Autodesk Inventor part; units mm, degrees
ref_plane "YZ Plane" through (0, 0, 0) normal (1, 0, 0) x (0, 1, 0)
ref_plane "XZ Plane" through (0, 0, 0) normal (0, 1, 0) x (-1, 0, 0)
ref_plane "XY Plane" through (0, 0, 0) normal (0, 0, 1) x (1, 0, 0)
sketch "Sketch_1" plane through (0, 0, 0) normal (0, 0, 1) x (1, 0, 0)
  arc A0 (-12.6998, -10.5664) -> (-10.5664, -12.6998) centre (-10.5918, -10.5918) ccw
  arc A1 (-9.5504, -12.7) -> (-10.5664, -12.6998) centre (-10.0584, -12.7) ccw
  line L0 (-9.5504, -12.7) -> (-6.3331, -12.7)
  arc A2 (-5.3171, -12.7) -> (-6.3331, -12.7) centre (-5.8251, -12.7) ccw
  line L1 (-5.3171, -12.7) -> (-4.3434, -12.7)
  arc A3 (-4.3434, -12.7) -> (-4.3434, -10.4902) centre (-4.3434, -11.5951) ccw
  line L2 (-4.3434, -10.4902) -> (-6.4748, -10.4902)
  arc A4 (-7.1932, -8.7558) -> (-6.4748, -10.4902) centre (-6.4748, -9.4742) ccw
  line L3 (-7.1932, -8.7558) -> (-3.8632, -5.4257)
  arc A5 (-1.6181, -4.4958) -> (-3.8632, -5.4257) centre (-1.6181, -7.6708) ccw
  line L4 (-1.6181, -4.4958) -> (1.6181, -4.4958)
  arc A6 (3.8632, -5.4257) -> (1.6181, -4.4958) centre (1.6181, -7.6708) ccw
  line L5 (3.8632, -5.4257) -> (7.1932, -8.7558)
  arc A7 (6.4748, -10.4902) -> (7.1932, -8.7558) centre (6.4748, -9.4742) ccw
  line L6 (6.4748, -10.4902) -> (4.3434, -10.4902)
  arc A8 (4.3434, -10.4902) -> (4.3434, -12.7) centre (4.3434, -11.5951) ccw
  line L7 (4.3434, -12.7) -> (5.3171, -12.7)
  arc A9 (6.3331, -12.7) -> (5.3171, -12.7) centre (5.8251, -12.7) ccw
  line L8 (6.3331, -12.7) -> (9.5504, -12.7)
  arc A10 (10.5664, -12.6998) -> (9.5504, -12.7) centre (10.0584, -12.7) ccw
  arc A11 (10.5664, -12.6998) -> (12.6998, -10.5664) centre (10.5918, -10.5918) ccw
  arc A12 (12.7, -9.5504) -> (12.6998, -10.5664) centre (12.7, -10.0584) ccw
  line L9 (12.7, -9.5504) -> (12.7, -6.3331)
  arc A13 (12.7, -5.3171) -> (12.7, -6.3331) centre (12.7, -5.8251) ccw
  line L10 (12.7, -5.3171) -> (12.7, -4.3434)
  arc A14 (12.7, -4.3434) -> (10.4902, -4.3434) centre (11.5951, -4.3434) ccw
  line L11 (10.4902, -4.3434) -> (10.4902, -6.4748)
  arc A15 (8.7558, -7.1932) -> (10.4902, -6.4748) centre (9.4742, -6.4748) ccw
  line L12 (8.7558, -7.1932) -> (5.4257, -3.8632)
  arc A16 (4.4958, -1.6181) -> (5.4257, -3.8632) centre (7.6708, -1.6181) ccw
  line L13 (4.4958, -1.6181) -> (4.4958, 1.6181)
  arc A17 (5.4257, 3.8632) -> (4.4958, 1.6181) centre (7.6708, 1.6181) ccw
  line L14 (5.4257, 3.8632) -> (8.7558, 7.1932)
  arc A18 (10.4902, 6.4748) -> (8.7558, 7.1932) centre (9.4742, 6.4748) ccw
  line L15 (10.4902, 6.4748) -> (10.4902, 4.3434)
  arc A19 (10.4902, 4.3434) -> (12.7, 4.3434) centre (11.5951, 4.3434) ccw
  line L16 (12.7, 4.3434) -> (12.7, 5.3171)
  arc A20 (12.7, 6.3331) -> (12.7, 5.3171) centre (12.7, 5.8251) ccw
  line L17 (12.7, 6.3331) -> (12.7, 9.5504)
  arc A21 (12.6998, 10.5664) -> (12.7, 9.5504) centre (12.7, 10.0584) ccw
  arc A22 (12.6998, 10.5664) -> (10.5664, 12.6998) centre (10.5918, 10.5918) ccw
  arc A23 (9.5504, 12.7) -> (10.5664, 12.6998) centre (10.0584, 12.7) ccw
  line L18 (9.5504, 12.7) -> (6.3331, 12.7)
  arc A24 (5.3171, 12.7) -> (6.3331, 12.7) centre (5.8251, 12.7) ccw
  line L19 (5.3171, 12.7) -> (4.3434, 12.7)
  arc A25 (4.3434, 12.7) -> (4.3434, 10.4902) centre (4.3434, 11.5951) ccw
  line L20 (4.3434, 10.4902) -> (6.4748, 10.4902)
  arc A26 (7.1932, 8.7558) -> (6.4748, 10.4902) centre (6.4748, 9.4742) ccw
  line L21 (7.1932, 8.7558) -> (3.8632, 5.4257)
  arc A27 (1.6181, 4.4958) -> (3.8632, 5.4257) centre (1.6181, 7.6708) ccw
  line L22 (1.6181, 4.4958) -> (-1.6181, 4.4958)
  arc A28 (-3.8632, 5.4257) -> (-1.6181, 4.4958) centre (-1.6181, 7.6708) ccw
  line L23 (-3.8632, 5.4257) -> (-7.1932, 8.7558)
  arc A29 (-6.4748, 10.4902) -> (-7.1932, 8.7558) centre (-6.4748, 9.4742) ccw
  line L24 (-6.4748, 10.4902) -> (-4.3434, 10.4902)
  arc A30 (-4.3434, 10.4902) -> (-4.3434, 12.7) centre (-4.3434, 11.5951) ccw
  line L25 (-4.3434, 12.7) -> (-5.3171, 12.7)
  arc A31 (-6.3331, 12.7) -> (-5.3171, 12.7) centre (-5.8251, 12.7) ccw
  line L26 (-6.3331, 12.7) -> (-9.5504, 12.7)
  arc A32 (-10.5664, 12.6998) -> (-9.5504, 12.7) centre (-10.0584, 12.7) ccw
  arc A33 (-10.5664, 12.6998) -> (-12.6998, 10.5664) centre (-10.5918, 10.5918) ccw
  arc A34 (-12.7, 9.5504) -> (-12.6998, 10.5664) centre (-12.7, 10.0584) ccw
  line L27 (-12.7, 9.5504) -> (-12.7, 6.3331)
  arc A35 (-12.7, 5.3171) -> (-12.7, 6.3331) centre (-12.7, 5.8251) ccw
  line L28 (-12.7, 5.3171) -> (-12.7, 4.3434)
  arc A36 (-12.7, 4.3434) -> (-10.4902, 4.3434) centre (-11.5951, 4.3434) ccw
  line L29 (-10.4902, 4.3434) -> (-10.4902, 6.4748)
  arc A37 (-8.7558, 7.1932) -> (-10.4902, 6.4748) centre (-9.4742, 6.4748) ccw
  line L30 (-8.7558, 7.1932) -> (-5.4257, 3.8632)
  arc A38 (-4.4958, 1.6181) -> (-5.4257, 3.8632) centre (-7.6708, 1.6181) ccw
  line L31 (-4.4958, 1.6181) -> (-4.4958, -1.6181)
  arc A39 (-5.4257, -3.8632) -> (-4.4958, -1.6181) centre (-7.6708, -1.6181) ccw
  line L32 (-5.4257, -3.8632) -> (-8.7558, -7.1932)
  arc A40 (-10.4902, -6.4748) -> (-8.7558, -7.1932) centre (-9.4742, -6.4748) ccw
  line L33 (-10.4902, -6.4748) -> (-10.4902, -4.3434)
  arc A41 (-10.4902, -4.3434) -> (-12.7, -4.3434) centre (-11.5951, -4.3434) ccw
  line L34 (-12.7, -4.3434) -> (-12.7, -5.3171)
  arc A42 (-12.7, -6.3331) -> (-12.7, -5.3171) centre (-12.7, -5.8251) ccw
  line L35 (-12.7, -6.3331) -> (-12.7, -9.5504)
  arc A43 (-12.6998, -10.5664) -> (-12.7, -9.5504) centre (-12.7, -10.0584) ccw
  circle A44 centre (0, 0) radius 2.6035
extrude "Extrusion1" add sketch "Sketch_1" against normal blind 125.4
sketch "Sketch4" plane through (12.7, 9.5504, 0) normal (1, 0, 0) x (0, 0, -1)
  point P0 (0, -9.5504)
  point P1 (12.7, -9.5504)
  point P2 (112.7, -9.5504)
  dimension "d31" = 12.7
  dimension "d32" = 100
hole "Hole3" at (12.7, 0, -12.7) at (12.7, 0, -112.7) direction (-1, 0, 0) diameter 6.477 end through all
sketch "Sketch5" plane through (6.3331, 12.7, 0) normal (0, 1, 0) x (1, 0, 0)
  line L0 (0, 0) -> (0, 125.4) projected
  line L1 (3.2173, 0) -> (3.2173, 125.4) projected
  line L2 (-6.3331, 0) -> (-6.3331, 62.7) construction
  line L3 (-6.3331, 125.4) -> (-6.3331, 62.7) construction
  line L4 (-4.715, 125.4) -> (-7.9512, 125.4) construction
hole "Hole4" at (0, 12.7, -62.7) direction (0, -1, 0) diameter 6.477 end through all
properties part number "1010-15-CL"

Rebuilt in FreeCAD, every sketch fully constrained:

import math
import FreeCAD as App
import Part
import Sketcher
Q = App.Units.Quantity

doc = App.newDocument("Part")
body = doc.addObject("PartDesign::Body", "Body")

sketch1 = body.newObject("Sketcher::SketchObject", "Sketch")
sketch1.AttachmentSupport = (doc.getObject("XY_Plane"), [""])
sketch1.MapMode = "FlatFace"
sketch1.addGeometry([
    Part.ArcOfCircle(Part.Circle(App.Vector(-12.7, -10.1, 0), App.Vector(0, 0, 1), 0.5), math.radians(-90), math.radians(90)),
    Part.ArcOfCircle(Part.Circle(App.Vector(-10.6, -10.6, 0), App.Vector(0, 0, 1), 2.1), math.radians(179), math.radians(271)),
    Part.ArcOfCircle(Part.Circle(App.Vector(-10.1, -12.7, 0), App.Vector(0, 0, 1), 0.5), math.radians(0), math.radians(180)),
    Part.LineSegment(App.Vector(-9.6, -12.7, 0), App.Vector(-6.3, -12.7, 0)),
    Part.ArcOfCircle(Part.Circle(App.Vector(-5.8, -12.7, 0), App.Vector(0, 0, 1), 0.5), math.radians(0), math.radians(180)),
    Part.LineSegment(App.Vector(-5.3, -12.7, 0), App.Vector(-4.3, -12.7, 0)),
    Part.ArcOfCircle(Part.Circle(App.Vector(-4.3, -11.6, 0), App.Vector(0, 0, 1), 1.1), math.radians(-90), math.radians(90)),
    Part.LineSegment(App.Vector(-4.3, -10.5, 0), App.Vector(-6.5, -10.5, 0)),
    Part.ArcOfCircle(Part.Circle(App.Vector(-6.5, -9.5, 0), App.Vector(0, 0, 1), 1), math.radians(135), math.radians(270)),
    Part.LineSegment(App.Vector(-7.2, -8.8, 0), App.Vector(-3.9, -5.4, 0)),
    Part.ArcOfCircle(Part.Circle(App.Vector(-1.6, -7.7, 0), App.Vector(0, 0, 1), 3.2), math.radians(90), math.radians(135)),
    Part.LineSegment(App.Vector(-1.6, -4.5, 0), App.Vector(1.6, -4.5, 0)),
    Part.ArcOfCircle(Part.Circle(App.Vector(1.6, -7.7, 0), App.Vector(0, 0, 1), 3.2), math.radians(45), math.radians(90)),
    Part.LineSegment(App.Vector(3.9, -5.4, 0), App.Vector(7.2, -8.8, 0)),
    Part.ArcOfCircle(Part.Circle(App.Vector(6.5, -9.5, 0), App.Vector(0, 0, 1), 1), math.radians(-90), math.radians(45)),
    Part.LineSegment(App.Vector(6.5, -10.5, 0), App.Vector(4.3, -10.5, 0)),
    Part.ArcOfCircle(Part.Circle(App.Vector(4.3, -11.6, 0), App.Vector(0, 0, 1), 1.1), math.radians(90), math.radians(270)),
    Part.LineSegment(App.Vector(4.3, -12.7, 0), App.Vector(5.3, -12.7, 0)),
    Part.ArcOfCircle(Part.Circle(App.Vector(5.8, -12.7, 0), App.Vector(0, 0, 1), 0.5), math.radians(0), math.radians(180)),
    Part.LineSegment(App.Vector(6.3, -12.7, 0), App.Vector(9.6, -12.7, 0)),
    Part.ArcOfCircle(Part.Circle(App.Vector(10.1, -12.7, 0), App.Vector(0, 0, 1), 0.5), math.radians(0), math.radians(180)),
    Part.ArcOfCircle(Part.Circle(App.Vector(10.6, -10.6, 0), App.Vector(0, 0, 1), 2.1), math.radians(-91), math.radians(1)),
    Part.ArcOfCircle(Part.Circle(App.Vector(12.7, -10.1, 0), App.Vector(0, 0, 1), 0.5), math.radians(90), math.radians(270)),
    Part.LineSegment(App.Vector(12.7, -9.6, 0), App.Vector(12.7, -6.3, 0)),
    Part.ArcOfCircle(Part.Circle(App.Vector(12.7, -5.8, 0), App.Vector(0, 0, 1), 0.5), math.radians(90), math.radians(270)),
    Part.LineSegment(App.Vector(12.7, -5.3, 0), App.Vector(12.7, -4.3, 0)),
    Part.ArcOfCircle(Part.Circle(App.Vector(11.6, -4.3, 0), App.Vector(0, 0, 1), 1.1), math.radians(0), math.radians(180)),
    Part.LineSegment(App.Vector(10.5, -4.3, 0), App.Vector(10.5, -6.5, 0)),
    Part.ArcOfCircle(Part.Circle(App.Vector(9.5, -6.5, 0), App.Vector(0, 0, 1), 1), math.radians(-135), math.radians(0)),
    Part.LineSegment(App.Vector(8.8, -7.2, 0), App.Vector(5.4, -3.9, 0)),
    Part.ArcOfCircle(Part.Circle(App.Vector(7.7, -1.6, 0), App.Vector(0, 0, 1), 3.2), math.radians(180), math.radians(225)),
    Part.LineSegment(App.Vector(4.5, -1.6, 0), App.Vector(4.5, 1.6, 0)),
    Part.ArcOfCircle(Part.Circle(App.Vector(7.7, 1.6, 0), App.Vector(0, 0, 1), 3.2), math.radians(135), math.radians(180)),
    Part.LineSegment(App.Vector(5.4, 3.9, 0), App.Vector(8.8, 7.2, 0)),
    Part.ArcOfCircle(Part.Circle(App.Vector(9.5, 6.5, 0), App.Vector(0, 0, 1), 1), math.radians(0), math.radians(135)),
    Part.LineSegment(App.Vector(10.5, 6.5, 0), App.Vector(10.5, 4.3, 0)),
    Part.ArcOfCircle(Part.Circle(App.Vector(11.6, 4.3, 0), App.Vector(0, 0, 1), 1.1), math.radians(180), math.radians(360)),
    Part.LineSegment(App.Vector(12.7, 4.3, 0), App.Vector(12.7, 5.3, 0)),
    Part.ArcOfCircle(Part.Circle(App.Vector(12.7, 5.8, 0), App.Vector(0, 0, 1), 0.5), math.radians(90), math.radians(270)),
    Part.LineSegment(App.Vector(12.7, 6.3, 0), App.Vector(12.7, 9.6, 0)),
    Part.ArcOfCircle(Part.Circle(App.Vector(12.7, 10.1, 0), App.Vector(0, 0, 1), 0.5), math.radians(90), math.radians(270)),
    Part.ArcOfCircle(Part.Circle(App.Vector(10.6, 10.6, 0), App.Vector(0, 0, 1), 2.1), math.radians(-1), math.radians(91)),
    Part.ArcOfCircle(Part.Circle(App.Vector(10.1, 12.7, 0), App.Vector(0, 0, 1), 0.5), math.radians(180), math.radians(360)),
    Part.LineSegment(App.Vector(9.6, 12.7, 0), App.Vector(6.3, 12.7, 0)),
    Part.ArcOfCircle(Part.Circle(App.Vector(5.8, 12.7, 0), App.Vector(0, 0, 1), 0.5), math.radians(180), math.radians(360)),
    Part.LineSegment(App.Vector(5.3, 12.7, 0), App.Vector(4.3, 12.7, 0)),
    Part.ArcOfCircle(Part.Circle(App.Vector(4.3, 11.6, 0), App.Vector(0, 0, 1), 1.1), math.radians(90), math.radians(270)),
    Part.LineSegment(App.Vector(4.3, 10.5, 0), App.Vector(6.5, 10.5, 0)),
    Part.ArcOfCircle(Part.Circle(App.Vector(6.5, 9.5, 0), App.Vector(0, 0, 1), 1), math.radians(-45), math.radians(90)),
    Part.LineSegment(App.Vector(7.2, 8.8, 0), App.Vector(3.9, 5.4, 0)),
    Part.ArcOfCircle(Part.Circle(App.Vector(1.6, 7.7, 0), App.Vector(0, 0, 1), 3.2), math.radians(-90), math.radians(-45)),
    Part.LineSegment(App.Vector(1.6, 4.5, 0), App.Vector(-1.6, 4.5, 0)),
    Part.ArcOfCircle(Part.Circle(App.Vector(-1.6, 7.7, 0), App.Vector(0, 0, 1), 3.2), math.radians(-135), math.radians(-90)),
    Part.LineSegment(App.Vector(-3.9, 5.4, 0), App.Vector(-7.2, 8.8, 0)),
    Part.ArcOfCircle(Part.Circle(App.Vector(-6.5, 9.5, 0), App.Vector(0, 0, 1), 1), math.radians(90), math.radians(225)),
    Part.LineSegment(App.Vector(-6.5, 10.5, 0), App.Vector(-4.3, 10.5, 0)),
    Part.ArcOfCircle(Part.Circle(App.Vector(-4.3, 11.6, 0), App.Vector(0, 0, 1), 1.1), math.radians(-90), math.radians(90)),
    Part.LineSegment(App.Vector(-4.3, 12.7, 0), App.Vector(-5.3, 12.7, 0)),
    Part.ArcOfCircle(Part.Circle(App.Vector(-5.8, 12.7, 0), App.Vector(0, 0, 1), 0.5), math.radians(180), math.radians(360)),
    Part.LineSegment(App.Vector(-6.3, 12.7, 0), App.Vector(-9.6, 12.7, 0)),
    Part.ArcOfCircle(Part.Circle(App.Vector(-10.1, 12.7, 0), App.Vector(0, 0, 1), 0.5), math.radians(-180), math.radians(0)),
    Part.ArcOfCircle(Part.Circle(App.Vector(-10.6, 10.6, 0), App.Vector(0, 0, 1), 2.1), math.radians(89), math.radians(181)),
    Part.ArcOfCircle(Part.Circle(App.Vector(-12.7, 10.1, 0), App.Vector(0, 0, 1), 0.5), math.radians(-90), math.radians(90)),
    Part.LineSegment(App.Vector(-12.7, 9.6, 0), App.Vector(-12.7, 6.3, 0)),
    Part.ArcOfCircle(Part.Circle(App.Vector(-12.7, 5.8, 0), App.Vector(0, 0, 1), 0.5), math.radians(-90), math.radians(90)),
    Part.LineSegment(App.Vector(-12.7, 5.3, 0), App.Vector(-12.7, 4.3, 0)),
    Part.ArcOfCircle(Part.Circle(App.Vector(-11.6, 4.3, 0), App.Vector(0, 0, 1), 1.1), math.radians(180), math.radians(360)),
    Part.LineSegment(App.Vector(-10.5, 4.3, 0), App.Vector(-10.5, 6.5, 0)),
    Part.ArcOfCircle(Part.Circle(App.Vector(-9.5, 6.5, 0), App.Vector(0, 0, 1), 1), math.radians(45), math.radians(180)),
    Part.LineSegment(App.Vector(-8.8, 7.2, 0), App.Vector(-5.4, 3.9, 0)),
    Part.ArcOfCircle(Part.Circle(App.Vector(-7.7, 1.6, 0), App.Vector(0, 0, 1), 3.2), math.radians(0), math.radians(45)),
    Part.LineSegment(App.Vector(-4.5, 1.6, 0), App.Vector(-4.5, -1.6, 0)),
    Part.ArcOfCircle(Part.Circle(App.Vector(-7.7, -1.6, 0), App.Vector(0, 0, 1), 3.2), math.radians(-45), math.radians(0)),
    Part.LineSegment(App.Vector(-5.4, -3.9, 0), App.Vector(-8.8, -7.2, 0)),
    Part.ArcOfCircle(Part.Circle(App.Vector(-9.5, -6.5, 0), App.Vector(0, 0, 1), 1), math.radians(180), math.radians(315)),
    Part.LineSegment(App.Vector(-10.5, -6.5, 0), App.Vector(-10.5, -4.3, 0)),
    Part.ArcOfCircle(Part.Circle(App.Vector(-11.6, -4.3, 0), App.Vector(0, 0, 1), 1.1), math.radians(0), math.radians(180)),
    Part.LineSegment(App.Vector(-12.7, -4.3, 0), App.Vector(-12.7, -5.3, 0)),
    Part.ArcOfCircle(Part.Circle(App.Vector(-12.7, -5.8, 0), App.Vector(0, 0, 1), 0.5), math.radians(-90), math.radians(90)),
    Part.LineSegment(App.Vector(-12.7, -6.3, 0), App.Vector(-12.7, -9.6, 0)),
    Part.Circle(App.Vector(0, 0, 0), App.Vector(0, 0, 1), 2.6),
], False)
sketch1.addConstraint([
    Sketcher.Constraint("Coincident", 0, 1, 1, 1),
    Sketcher.Constraint("Coincident", 1, 2, 2, 2),
    Sketcher.Constraint("Coincident", 2, 1, 3, 1),
    Sketcher.Constraint("Coincident", 3, 2, 4, 2),
    Sketcher.Constraint("Coincident", 4, 1, 5, 1),
    Sketcher.Constraint("Tangent", 5, 2, 6, 1),
    Sketcher.Constraint("Tangent", 6, 2, 7, 1),
    Sketcher.Constraint("Tangent", 7, 2, 8, 2),
    Sketcher.Constraint("Tangent", 8, 1, 9, 1),
    Sketcher.Constraint("Tangent", 9, 2, 10, 2),
    Sketcher.Constraint("Tangent", 10, 1, 11, 1),
    Sketcher.Constraint("Tangent", 11, 2, 12, 2),
    Sketcher.Constraint("Tangent", 12, 1, 13, 1),
    Sketcher.Constraint("Tangent", 13, 2, 14, 2),
    Sketcher.Constraint("Tangent", 14, 1, 15, 1),
    Sketcher.Constraint("Tangent", 15, 2, 16, 1),
    Sketcher.Constraint("Tangent", 16, 2, 17, 1),
    Sketcher.Constraint("Coincident", 17, 2, 18, 2),
    Sketcher.Constraint("Coincident", 18, 1, 19, 1),
    Sketcher.Constraint("Coincident", 19, 2, 20, 2),
    Sketcher.Constraint("Coincident", 20, 1, 21, 1),
    Sketcher.Constraint("Coincident", 21, 2, 22, 2),
    Sketcher.Constraint("Coincident", 22, 1, 23, 1),
    Sketcher.Constraint("Coincident", 23, 2, 24, 2),
    Sketcher.Constraint("Coincident", 24, 1, 25, 1),
    Sketcher.Constraint("Tangent", 25, 2, 26, 1),
    Sketcher.Constraint("Tangent", 26, 2, 27, 1),
    Sketcher.Constraint("Tangent", 27, 2, 28, 2),
    Sketcher.Constraint("Tangent", 28, 1, 29, 1),
    Sketcher.Constraint("Tangent", 29, 2, 30, 2),
    Sketcher.Constraint("Tangent", 30, 1, 31, 1),
    Sketcher.Constraint("Tangent", 31, 2, 32, 2),
    Sketcher.Constraint("Tangent", 32, 1, 33, 1),
    Sketcher.Constraint("Tangent", 33, 2, 34, 2),
    Sketcher.Constraint("Tangent", 34, 1, 35, 1),
    Sketcher.Constraint("Tangent", 35, 2, 36, 1),
    Sketcher.Constraint("Tangent", 36, 2, 37, 1),
    Sketcher.Constraint("Coincident", 37, 2, 38, 2),
    Sketcher.Constraint("Coincident", 38, 1, 39, 1),
    Sketcher.Constraint("Coincident", 39, 2, 40, 2),
    Sketcher.Constraint("Coincident", 40, 1, 41, 1),
    Sketcher.Constraint("Coincident", 41, 2, 42, 2),
    Sketcher.Constraint("Coincident", 42, 1, 43, 1),
    Sketcher.Constraint("Coincident", 43, 2, 44, 2),
    Sketcher.Constraint("Coincident", 44, 1, 45, 1),
    Sketcher.Constraint("Tangent", 45, 2, 46, 1),
    Sketcher.Constraint("Tangent", 46, 2, 47, 1),
    Sketcher.Constraint("Tangent", 47, 2, 48, 2),
    Sketcher.Constraint("Tangent", 48, 1, 49, 1),
    Sketcher.Constraint("Tangent", 49, 2, 50, 2),
    Sketcher.Constraint("Tangent", 50, 1, 51, 1),
    Sketcher.Constraint("Tangent", 51, 2, 52, 2),
    Sketcher.Constraint("Tangent", 52, 1, 53, 1),
    Sketcher.Constraint("Tangent", 53, 2, 54, 2),
    Sketcher.Constraint("Tangent", 54, 1, 55, 1),
    Sketcher.Constraint("Tangent", 55, 2, 56, 1),
    Sketcher.Constraint("Tangent", 56, 2, 57, 1),
    Sketcher.Constraint("Coincident", 57, 2, 58, 2),
    Sketcher.Constraint("Coincident", 58, 1, 59, 1),
    Sketcher.Constraint("Coincident", 59, 2, 60, 2),
    Sketcher.Constraint("Coincident", 60, 1, 61, 1),
    Sketcher.Constraint("Coincident", 61, 2, 62, 2),
    Sketcher.Constraint("Coincident", 62, 1, 63, 1),
    Sketcher.Constraint("Coincident", 63, 2, 64, 2),
    Sketcher.Constraint("Coincident", 64, 1, 65, 1),
    Sketcher.Constraint("Tangent", 65, 2, 66, 1),
    Sketcher.Constraint("Tangent", 66, 2, 67, 1),
    Sketcher.Constraint("Tangent", 67, 2, 68, 2),
    Sketcher.Constraint("Tangent", 68, 1, 69, 1),
    Sketcher.Constraint("Tangent", 69, 2, 70, 2),
    Sketcher.Constraint("Tangent", 70, 1, 71, 1),
    Sketcher.Constraint("Tangent", 71, 2, 72, 2),
    Sketcher.Constraint("Tangent", 72, 1, 73, 1),
    Sketcher.Constraint("Tangent", 73, 2, 74, 2),
    Sketcher.Constraint("Tangent", 74, 1, 75, 1),
    Sketcher.Constraint("Tangent", 75, 2, 76, 1),
    Sketcher.Constraint("Tangent", 76, 2, 77, 1),
    Sketcher.Constraint("Coincident", 77, 2, 78, 2),
    Sketcher.Constraint("Coincident", 78, 1, 79, 1),
    Sketcher.Constraint("Coincident", 79, 2, 0, 2),
    Sketcher.Constraint("Horizontal", 3),
    Sketcher.Constraint("Horizontal", 5),
    Sketcher.Constraint("Horizontal", 7),
    Sketcher.Constraint("Horizontal", 11),
    Sketcher.Constraint("Horizontal", 15),
    Sketcher.Constraint("Horizontal", 17),
    Sketcher.Constraint("Horizontal", 19),
    Sketcher.Constraint("Vertical", 23),
    Sketcher.Constraint("Vertical", 25),
    Sketcher.Constraint("Vertical", 27),
    Sketcher.Constraint("Vertical", 31),
    Sketcher.Constraint("Vertical", 35),
    Sketcher.Constraint("Vertical", 37),
    Sketcher.Constraint("Vertical", 39),
    Sketcher.Constraint("Horizontal", 43),
    Sketcher.Constraint("Horizontal", 45),
    Sketcher.Constraint("Horizontal", 47),
    Sketcher.Constraint("Horizontal", 51),
    Sketcher.Constraint("Horizontal", 55),
    Sketcher.Constraint("Horizontal", 57),
    Sketcher.Constraint("Horizontal", 59),
    Sketcher.Constraint("Vertical", 63),
    Sketcher.Constraint("Vertical", 65),
    Sketcher.Constraint("Vertical", 67),
    Sketcher.Constraint("Vertical", 71),
    Sketcher.Constraint("Vertical", 75),
    Sketcher.Constraint("Vertical", 77),
    Sketcher.Constraint("Vertical", 79),
    Sketcher.Constraint("Coincident", 80, 3, -1, 1),
    Sketcher.Constraint("Equal", 0, 2),
    Sketcher.Constraint("Equal", 2, 4),
    Sketcher.Constraint("Equal", 10, 12),
    Sketcher.Constraint("Equal", 8, 14),
    Sketcher.Constraint("Equal", 6, 16),
    Sketcher.Constraint("Equal", 4, 18),
    Sketcher.Constraint("Equal", 18, 20),
    Sketcher.Constraint("Equal", 1, 21),
    Sketcher.Constraint("Equal", 20, 22),
    Sketcher.Constraint("Equal", 22, 24),
    Sketcher.Constraint("Equal", 16, 26),
    Sketcher.Constraint("Equal", 14, 28),
    Sketcher.Constraint("Equal", 12, 30),
    Sketcher.Constraint("Equal", 30, 32),
    Sketcher.Constraint("Equal", 28, 34),
    Sketcher.Constraint("Equal", 26, 36),
    Sketcher.Constraint("Equal", 24, 38),
    Sketcher.Constraint("Equal", 38, 40),
    Sketcher.Constraint("Equal", 21, 41),
    Sketcher.Constraint("Equal", 40, 42),
    Sketcher.Constraint("Equal", 42, 44),
    Sketcher.Constraint("Equal", 36, 46),
    Sketcher.Constraint("Equal", 34, 48),
    Sketcher.Constraint("Equal", 32, 50),
    Sketcher.Constraint("Equal", 50, 52),
    Sketcher.Constraint("Equal", 48, 54),
    Sketcher.Constraint("Equal", 46, 56),
    Sketcher.Constraint("Equal", 44, 58),
    Sketcher.Constraint("Equal", 58, 60),
    Sketcher.Constraint("Equal", 41, 61),
    Sketcher.Constraint("Equal", 60, 62),
    Sketcher.Constraint("Equal", 62, 64),
    Sketcher.Constraint("Equal", 56, 66),
    Sketcher.Constraint("Equal", 54, 68),
    Sketcher.Constraint("Equal", 52, 70),
    Sketcher.Constraint("Equal", 70, 72),
    Sketcher.Constraint("Equal", 68, 74),
    Sketcher.Constraint("Equal", 66, 76),
    Sketcher.Constraint("Equal", 64, 78),
    Sketcher.Constraint("Symmetric", 0, 3, 40, 3, -1, 1),
    Sketcher.Constraint("Symmetric", 1, 3, 41, 3, -1, 1),
    Sketcher.Constraint("Symmetric", 2, 3, 42, 3, -1, 1),
    Sketcher.Constraint("Symmetric", 4, 3, 44, 3, -1, 1),
    Sketcher.Constraint("Symmetric", 6, 3, 46, 3, -1, 1),
    Sketcher.Constraint("Symmetric", 10, 3, 50, 3, -1, 1),
    Sketcher.Constraint("Symmetric", 14, 3, 54, 3, -1, 1),
    Sketcher.Constraint("Symmetric", 18, 3, 58, 3, -1, 1),
    Sketcher.Constraint("Symmetric", 20, 3, 60, 3, -1, 1),
    Sketcher.Constraint("Symmetric", 21, 3, 61, 3, -1, 1),
    Sketcher.Constraint("Symmetric", 22, 3, 62, 3, -1, 1),
    Sketcher.Constraint("Symmetric", 24, 3, 64, 3, -1, 1),
    Sketcher.Constraint("Symmetric", 26, 3, 66, 3, -1, 1),
    Sketcher.Constraint("Symmetric", 30, 3, 70, 3, -1, 1),
    Sketcher.Constraint("Symmetric", 34, 3, 74, 3, -1, 1),
    Sketcher.Constraint("Symmetric", 38, 3, 78, 3, -1, 1),
    Sketcher.Constraint("Symmetric", 8, 3, 14, 3, -2),
    Sketcher.Constraint("Symmetric", 4, 3, 18, 3, -2),
    Sketcher.Constraint("Symmetric", 2, 3, 20, 3, -2),
    Sketcher.Constraint("Symmetric", 1, 3, 21, 3, -2),
    Sketcher.Constraint("Symmetric", 0, 3, 22, 3, -2),
    Sketcher.Constraint("Symmetric", 38, 3, 64, 3, -2),
    Sketcher.Constraint("Symmetric", 36, 3, 66, 3, -2),
    Sketcher.Constraint("Symmetric", 49, 2, 52, 1, -2),
    Sketcher.Constraint("Symmetric", 33, 2, 68, 1, -2),
    Sketcher.Constraint("Symmetric", 29, 2, 72, 1, -2),
    Sketcher.Constraint("Perpendicular", 9, 13),
    Sketcher.Constraint("Parallel", 13, 29),
    Sketcher.Constraint("Perpendicular", 29, 33),
    Sketcher.Constraint("Horizontal", 2, 3, 4, 3),
    Sketcher.Constraint("Horizontal", 26, 3, 76, 3),
    Sketcher.Constraint("Horizontal", 20, 3, 1, 2),
    Sketcher.Constraint("Horizontal", 1, 2, 2, 1),
    Sketcher.Constraint("Horizontal", 3, 2, 4, 1),
    Sketcher.Constraint("Horizontal", 17, 2, 18, 1),
    Sketcher.Constraint("Horizontal", 41, 2, 42, 1),
    Sketcher.Constraint("Horizontal", 57, 2, 58, 1),
    Sketcher.Constraint("Vertical", 22, 3, 24, 3),
    Sketcher.Constraint("Vertical", 16, 3, 46, 3),
    Sketcher.Constraint("Vertical", 6, 3, 56, 3),
    Sketcher.Constraint("Vertical", 78, 3, 0, 1),
    Sketcher.Constraint("Vertical", 21, 2, 22, 1),
    Sketcher.Constraint("Vertical", 23, 2, 24, 1),
    Sketcher.Constraint("Vertical", 37, 2, 38, 1),
    Sketcher.Constraint("Vertical", 61, 2, 62, 1),
    Sketcher.Constraint("Vertical", 77, 2, 78, 1),
    Sketcher.Constraint("Equal", 59, 23),
    Sketcher.Constraint("Equal", 57, 25),
    Sketcher.Constraint("Equal", 55, 27),
    Sketcher.Constraint("Equal", 51, 31),
    Sketcher.Constraint("Equal", 13, 29),
    Sketcher.Constraint("Radius", 0, Q("0.02 in")),
    Sketcher.Constraint("Radius", 8, Q("0.04 in")),
    Sketcher.Constraint("Diameter", 80, Q("0.205 in")),
    Sketcher.Constraint("Radius", 1, Q("0.083 in")),
    Sketcher.Constraint("Radius", 10, Q("0.125 in")),
    Sketcher.Constraint("DistanceX", 0, 3, -1, 1, Q("0.5 in")),
    Sketcher.Constraint("DistanceY", 2, 3, -1, 1, Q("0.5 in")),
    Sketcher.Constraint("Radius", 6, Q("0.0435 in")),
    Sketcher.Constraint("DistanceX", 11, 1, 11, 2, Q("0.1274 in")),
    Sketcher.Constraint("DistanceY", 0, 3, -1, 1, Q("0.396 in")),
    Sketcher.Constraint("DistanceX", 6, 3, -1, 1, Q("0.171 in")),
    Sketcher.Constraint("DistanceY", 10, 3, -1, 1, Q("0.302 in")),
    Sketcher.Constraint("DistanceX", 3, 1, 3, 2, 3.2173),
])
pad1 = body.newObject("PartDesign::Pad", "Pad")
pad1.Profile = sketch1
pad1.Length = Q("4.9370079 in")
pad1.Reversed = True

sketch2 = body.newObject("Sketcher::SketchObject", "Sketch001")
sketch2.AttachmentSupport = (doc.getObject("YZ_Plane"), [""])
sketch2.MapMode = "FlatFace"
sketch2.AttachmentOffset = App.Placement(App.Vector(0, 0, 0.5 * 25.4), App.Rotation())
sketch2.addGeometry([
    Part.Circle(App.Vector(0, -12.7, 0), App.Vector(0, 0, 1), 3.2),
    Part.Circle(App.Vector(0, -112.7, 0), App.Vector(0, 0, 1), 3.2),
], False)
sketch2.addConstraint([
    Sketcher.Constraint("Equal", 0, 1),
    Sketcher.Constraint("PointOnObject", 0, 3, -2),
    Sketcher.Constraint("PointOnObject", 1, 3, -2),
    Sketcher.Constraint("Diameter", 0, Q("0.255 in")),
    Sketcher.Constraint("DistanceY", 0, 3, -1, 1, Q("0.5 in")),
    Sketcher.Constraint("DistanceY", 1, 3, -1, 1, Q("4.437 in")),
])
doc.recompute()
hole = body.newObject("PartDesign::Hole", "Hole")
hole.Profile = sketch2
hole.ThreadType = "None"
hole.Diameter = Q("0.255 in")
hole.DepthType = "ThroughAll"

sketch3 = body.newObject("Sketcher::SketchObject", "Sketch002")
sketch3.AttachmentSupport = (doc.getObject("XZ_Plane"), [""])
sketch3.MapMode = "FlatFace"
sketch3.AttachmentOffset = App.Placement(App.Vector(0, 0, -0.5 * 25.4), App.Rotation())
sketch3.addGeometry(Part.Circle(App.Vector(0, -62.7, 0), App.Vector(0, 0, 1), 3.2), False)
sketch3.addConstraint([
    Sketcher.Constraint("PointOnObject", 0, 3, -2),
    Sketcher.Constraint("Diameter", 0, Q("0.255 in")),
    Sketcher.Constraint("DistanceY", 0, 3, -1, 1, Q("2.4685 in")),
])
doc.recompute()
hole2 = body.newObject("PartDesign::Hole", "Hole001")
hole2.Profile = sketch3
hole2.ThreadType = "None"
hole2.Diameter = Q("0.255 in")
hole2.DepthType = "ThroughAll"
hole2.Reversed = True

doc.recompute()
